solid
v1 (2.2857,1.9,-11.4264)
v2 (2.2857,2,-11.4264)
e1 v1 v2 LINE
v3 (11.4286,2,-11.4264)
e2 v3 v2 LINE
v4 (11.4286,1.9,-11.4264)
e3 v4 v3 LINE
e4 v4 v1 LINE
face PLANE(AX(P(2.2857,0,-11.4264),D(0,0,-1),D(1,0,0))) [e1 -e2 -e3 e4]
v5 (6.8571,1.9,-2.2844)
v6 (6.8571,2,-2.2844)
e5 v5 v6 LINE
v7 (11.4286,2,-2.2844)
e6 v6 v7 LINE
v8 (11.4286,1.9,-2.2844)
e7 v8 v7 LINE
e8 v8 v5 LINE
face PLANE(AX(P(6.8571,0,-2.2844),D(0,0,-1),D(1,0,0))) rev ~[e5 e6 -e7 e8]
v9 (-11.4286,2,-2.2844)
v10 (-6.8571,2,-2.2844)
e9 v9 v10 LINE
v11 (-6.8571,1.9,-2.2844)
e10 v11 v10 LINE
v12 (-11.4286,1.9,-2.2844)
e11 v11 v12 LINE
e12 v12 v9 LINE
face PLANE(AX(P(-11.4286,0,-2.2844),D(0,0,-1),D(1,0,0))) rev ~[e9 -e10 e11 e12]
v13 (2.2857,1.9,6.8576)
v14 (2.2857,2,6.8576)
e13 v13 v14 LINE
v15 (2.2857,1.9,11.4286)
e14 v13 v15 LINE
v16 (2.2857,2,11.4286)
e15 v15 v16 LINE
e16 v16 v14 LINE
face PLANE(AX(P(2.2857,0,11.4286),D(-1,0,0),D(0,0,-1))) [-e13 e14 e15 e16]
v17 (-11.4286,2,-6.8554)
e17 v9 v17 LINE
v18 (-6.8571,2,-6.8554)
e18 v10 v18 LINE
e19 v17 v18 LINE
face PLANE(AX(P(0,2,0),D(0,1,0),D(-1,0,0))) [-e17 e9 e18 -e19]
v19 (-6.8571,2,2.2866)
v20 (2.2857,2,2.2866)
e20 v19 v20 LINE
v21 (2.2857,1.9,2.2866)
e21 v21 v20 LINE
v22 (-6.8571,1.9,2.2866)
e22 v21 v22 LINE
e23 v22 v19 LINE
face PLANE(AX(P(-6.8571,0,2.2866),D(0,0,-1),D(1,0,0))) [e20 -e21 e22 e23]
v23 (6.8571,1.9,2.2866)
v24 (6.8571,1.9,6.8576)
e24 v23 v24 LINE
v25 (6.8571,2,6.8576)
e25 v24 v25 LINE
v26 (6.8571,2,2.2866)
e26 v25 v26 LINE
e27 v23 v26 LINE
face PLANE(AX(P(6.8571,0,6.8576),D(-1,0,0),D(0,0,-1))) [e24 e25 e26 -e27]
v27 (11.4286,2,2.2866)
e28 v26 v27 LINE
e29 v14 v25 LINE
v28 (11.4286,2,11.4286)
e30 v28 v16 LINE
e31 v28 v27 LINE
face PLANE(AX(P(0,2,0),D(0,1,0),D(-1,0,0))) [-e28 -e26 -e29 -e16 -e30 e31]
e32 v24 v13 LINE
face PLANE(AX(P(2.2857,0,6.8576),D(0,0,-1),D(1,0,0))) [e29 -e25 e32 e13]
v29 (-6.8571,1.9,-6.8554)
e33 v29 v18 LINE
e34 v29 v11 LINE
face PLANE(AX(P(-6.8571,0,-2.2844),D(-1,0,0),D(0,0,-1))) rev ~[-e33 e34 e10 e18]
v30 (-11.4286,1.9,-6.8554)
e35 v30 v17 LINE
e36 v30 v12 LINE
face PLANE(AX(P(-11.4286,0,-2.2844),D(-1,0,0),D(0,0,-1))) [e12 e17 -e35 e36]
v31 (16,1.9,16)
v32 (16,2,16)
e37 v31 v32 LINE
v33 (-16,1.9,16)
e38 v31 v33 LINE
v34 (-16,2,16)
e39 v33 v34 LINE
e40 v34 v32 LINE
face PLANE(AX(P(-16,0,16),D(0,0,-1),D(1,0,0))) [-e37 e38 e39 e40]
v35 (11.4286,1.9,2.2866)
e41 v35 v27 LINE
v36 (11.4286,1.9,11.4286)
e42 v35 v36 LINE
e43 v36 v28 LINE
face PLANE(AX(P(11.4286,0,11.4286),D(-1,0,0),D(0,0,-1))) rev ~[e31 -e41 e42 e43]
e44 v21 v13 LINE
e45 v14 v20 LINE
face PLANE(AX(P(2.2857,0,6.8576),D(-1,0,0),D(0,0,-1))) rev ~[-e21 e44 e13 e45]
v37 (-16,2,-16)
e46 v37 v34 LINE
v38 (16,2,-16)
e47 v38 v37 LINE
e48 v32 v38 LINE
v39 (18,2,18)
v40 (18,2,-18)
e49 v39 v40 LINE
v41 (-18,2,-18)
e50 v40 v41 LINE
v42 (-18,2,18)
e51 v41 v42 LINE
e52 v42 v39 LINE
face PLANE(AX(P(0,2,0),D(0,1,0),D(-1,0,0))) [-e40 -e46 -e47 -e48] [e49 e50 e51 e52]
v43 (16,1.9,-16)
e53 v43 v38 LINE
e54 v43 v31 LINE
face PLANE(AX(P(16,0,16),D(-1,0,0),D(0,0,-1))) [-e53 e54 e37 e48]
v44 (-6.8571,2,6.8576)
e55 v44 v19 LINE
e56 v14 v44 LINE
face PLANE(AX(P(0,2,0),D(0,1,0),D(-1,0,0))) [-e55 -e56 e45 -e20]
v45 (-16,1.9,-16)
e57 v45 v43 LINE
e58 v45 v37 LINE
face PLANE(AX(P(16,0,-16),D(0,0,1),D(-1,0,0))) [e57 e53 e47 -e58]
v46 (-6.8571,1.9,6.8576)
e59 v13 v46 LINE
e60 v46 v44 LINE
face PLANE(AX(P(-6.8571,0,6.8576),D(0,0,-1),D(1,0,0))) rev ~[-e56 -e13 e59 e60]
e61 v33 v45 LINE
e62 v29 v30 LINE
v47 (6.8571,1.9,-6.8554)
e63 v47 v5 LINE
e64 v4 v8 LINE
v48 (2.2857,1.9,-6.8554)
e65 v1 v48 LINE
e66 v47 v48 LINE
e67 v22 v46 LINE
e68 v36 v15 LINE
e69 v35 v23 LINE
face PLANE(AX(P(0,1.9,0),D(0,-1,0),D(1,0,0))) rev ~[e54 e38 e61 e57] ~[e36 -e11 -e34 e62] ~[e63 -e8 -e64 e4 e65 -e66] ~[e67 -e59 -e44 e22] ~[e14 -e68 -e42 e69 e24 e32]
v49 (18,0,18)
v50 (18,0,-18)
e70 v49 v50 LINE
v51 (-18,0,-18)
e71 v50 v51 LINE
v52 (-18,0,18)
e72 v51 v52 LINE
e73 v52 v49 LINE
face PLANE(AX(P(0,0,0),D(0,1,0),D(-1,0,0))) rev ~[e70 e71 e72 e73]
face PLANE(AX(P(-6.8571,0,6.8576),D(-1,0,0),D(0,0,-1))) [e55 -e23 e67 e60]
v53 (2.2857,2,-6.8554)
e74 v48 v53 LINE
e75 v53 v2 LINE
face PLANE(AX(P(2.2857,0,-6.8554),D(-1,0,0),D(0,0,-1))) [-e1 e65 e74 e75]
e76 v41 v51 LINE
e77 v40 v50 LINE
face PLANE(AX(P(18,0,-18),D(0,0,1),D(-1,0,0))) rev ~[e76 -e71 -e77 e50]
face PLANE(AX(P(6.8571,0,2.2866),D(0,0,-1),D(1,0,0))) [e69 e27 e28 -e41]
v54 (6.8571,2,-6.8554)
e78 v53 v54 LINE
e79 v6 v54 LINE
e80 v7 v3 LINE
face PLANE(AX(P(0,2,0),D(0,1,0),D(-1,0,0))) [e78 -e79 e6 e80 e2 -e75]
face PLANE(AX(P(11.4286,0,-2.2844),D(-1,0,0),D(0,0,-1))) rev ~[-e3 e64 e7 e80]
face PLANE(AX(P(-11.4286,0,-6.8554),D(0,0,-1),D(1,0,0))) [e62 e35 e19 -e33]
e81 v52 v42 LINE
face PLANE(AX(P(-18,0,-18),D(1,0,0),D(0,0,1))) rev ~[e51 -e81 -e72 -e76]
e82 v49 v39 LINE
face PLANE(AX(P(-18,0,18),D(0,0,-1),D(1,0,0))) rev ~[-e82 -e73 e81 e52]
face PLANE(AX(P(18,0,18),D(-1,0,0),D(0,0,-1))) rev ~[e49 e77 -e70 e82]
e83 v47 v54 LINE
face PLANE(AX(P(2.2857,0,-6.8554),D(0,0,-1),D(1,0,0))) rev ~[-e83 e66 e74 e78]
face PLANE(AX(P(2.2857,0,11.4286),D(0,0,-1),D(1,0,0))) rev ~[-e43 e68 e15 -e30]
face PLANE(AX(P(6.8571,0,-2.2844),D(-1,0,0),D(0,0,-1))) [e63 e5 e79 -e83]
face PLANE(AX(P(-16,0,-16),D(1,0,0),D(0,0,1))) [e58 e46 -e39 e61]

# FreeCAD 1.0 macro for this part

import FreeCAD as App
import Part
import Sketcher
from FreeCAD import Vector
Q = App.Units.Quantity


def add_polygon(sketch, points):
    """Adds a closed chain of lines whose ends are joined by coincident constraints."""
    first, n = sketch.GeometryCount, len(points)
    for a, b in zip(points, points[1:] + points[:1]):
        sketch.addGeometry(Part.LineSegment(App.Vector(*a, 0), App.Vector(*b, 0)), False)
    for i in range(n):
        sketch.addConstraint(Sketcher.Constraint("Coincident", first + i, 2, first + (i + 1) % n, 1))

doc = App.newDocument("Part")
body = doc.addObject("PartDesign::Body", "Body")
body.AllowCompound = True

sketch1 = doc.addObject("Sketcher::SketchObject", "Sketch")
body.addObject(sketch1)
sketch1.AttachmentSupport = (doc.XZ_Plane, [""])
sketch1.MapMode = "FlatFace"
add_polygon(sketch1, [(-6.9, 2.3), (-6.9, 6.9), (2.3, 6.9), (2.3, 2.3)])
add_polygon(sketch1, [(2.3, 6.9), (2.3, 11.4), (11.4, 11.4), (11.4, 2.3), (6.9, 2.3), (6.9, 6.9)])
add_polygon(sketch1, [(-11.4, -6.9), (-11.4, -2.3), (-6.9, -2.3), (-6.9, -6.9)])
add_polygon(sketch1, [(6.9, -6.9), (6.9, -2.3), (11.4, -2.3), (11.4, -11.4), (2.3, -11.4), (2.3, -6.9)])
add_polygon(sketch1, [(-18, -18), (-18, 18), (18, 18), (18, -18)])
add_polygon(sketch1, [(16, 16), (-16, 16), (-16, -16), (16, -16)])
sketch1.addConstraint(Sketcher.Constraint("Vertical", 0))
sketch1.addConstraint(Sketcher.Constraint("Horizontal", 1))
sketch1.addConstraint(Sketcher.Constraint("Vertical", 2))
sketch1.addConstraint(Sketcher.Constraint("Horizontal", 3))
sketch1.addConstraint(Sketcher.Constraint("Vertical", 4))
sketch1.addConstraint(Sketcher.Constraint("Horizontal", 5))
sketch1.addConstraint(Sketcher.Constraint("Vertical", 6))
sketch1.addConstraint(Sketcher.Constraint("Horizontal", 7))
sketch1.addConstraint(Sketcher.Constraint("Vertical", 8))
sketch1.addConstraint(Sketcher.Constraint("Horizontal", 9))
sketch1.addConstraint(Sketcher.Constraint("Vertical", 10))
sketch1.addConstraint(Sketcher.Constraint("Horizontal", 11))
sketch1.addConstraint(Sketcher.Constraint("Vertical", 12))
sketch1.addConstraint(Sketcher.Constraint("Horizontal", 13))
sketch1.addConstraint(Sketcher.Constraint("Vertical", 14))
sketch1.addConstraint(Sketcher.Constraint("Horizontal", 15))
sketch1.addConstraint(Sketcher.Constraint("Vertical", 16))
sketch1.addConstraint(Sketcher.Constraint("Horizontal", 17))
sketch1.addConstraint(Sketcher.Constraint("Vertical", 18))
sketch1.addConstraint(Sketcher.Constraint("Horizontal", 19))
sketch1.addConstraint(Sketcher.Constraint("Vertical", 20))
sketch1.addConstraint(Sketcher.Constraint("Horizontal", 21))
sketch1.addConstraint(Sketcher.Constraint("Vertical", 22))
sketch1.addConstraint(Sketcher.Constraint("Horizontal", 23))
sketch1.addConstraint(Sketcher.Constraint("Horizontal", 24))
sketch1.addConstraint(Sketcher.Constraint("Vertical", 25))
sketch1.addConstraint(Sketcher.Constraint("Horizontal", 26))
sketch1.addConstraint(Sketcher.Constraint("Vertical", 27))
sketch1.addConstraint(Sketcher.Constraint("Coincident", 9, 2, 1, 2))
sketch1.addConstraint(Sketcher.Constraint("Symmetric", 20, 2, 22, 2, -1, 1))
sketch1.addConstraint(Sketcher.Constraint("Symmetric", 24, 2, 26, 2, -1, 1))
sketch1.addConstraint(Sketcher.Constraint("Symmetric", 3, 2, 7, 2, -2))
sketch1.addConstraint(Sketcher.Constraint("Symmetric", 11, 2, 14, 2, -2))
sketch1.addConstraint(Sketcher.Constraint("Horizontal", 13, 2, 18, 2))
sketch1.addConstraint(Sketcher.Constraint("Vertical", 3, 2, 11, 2))
sketch1.addConstraint(Sketcher.Constraint("Vertical", 6, 2, 15, 2))
sketch1.addConstraint(Sketcher.Constraint("Vertical", 9, 2, 17, 2))
sketch1.addConstraint(Sketcher.Constraint("Equal", 3, 5))
sketch1.addConstraint(Sketcher.Constraint("Equal", 7, 9))
sketch1.addConstraint(Sketcher.Constraint("Equal", 9, 11))
sketch1.addConstraint(Sketcher.Constraint("Equal", 2, 4))
sketch1.addConstraint(Sketcher.Constraint("Equal", 8, 10))
sketch1.addConstraint(Sketcher.Constraint("Equal", 6, 16))
sketch1.addConstraint(Sketcher.Constraint("Equal", 23, 20))
sketch1.addConstraint(Sketcher.Constraint("Equal", 26, 25))
sketch1.addConstraint(Sketcher.Constraint("DistanceX", 21, 1, 21, 2, Q("36 mm")))
sketch1.addConstraint(Sketcher.Constraint("DistanceX", 24, 2, 24, 1, Q("32 mm")))
sketch1.addConstraint(Sketcher.Constraint("DistanceY", 0, 1, 0, 2, Q("4.571 mm")))
sketch1.addConstraint(Sketcher.Constraint("DistanceX", 7, 2, 7, 1, Q("4.5715 mm")))
sketch1.addConstraint(Sketcher.Constraint("DistanceY", 10, 2, 3, 2, Q("4.571 mm")))
sketch1.addConstraint(Sketcher.Constraint("DistanceY", 4, 2, 24, 2, Q("4.5714 mm")))
pad1 = doc.addObject("PartDesign::Pad", "Pad")
body.addObject(pad1)
pad1.Profile = sketch1
pad1.Length = 2
pad1.Reversed = True

sketch2 = doc.addObject("Sketcher::SketchObject", "Sketch001")
body.addObject(sketch2)
sketch2.AttachmentSupport = (doc.XZ_Plane, [""])
sketch2.MapMode = "FlatFace"
add_polygon(sketch2, [(-18, 18), (-18, -18), (18, -18), (18, 18)])
sketch2.addConstraint(Sketcher.Constraint("Vertical", 0))
sketch2.addConstraint(Sketcher.Constraint("Horizontal", 1))
sketch2.addConstraint(Sketcher.Constraint("Vertical", 2))
sketch2.addConstraint(Sketcher.Constraint("Horizontal", 3))
sketch2.addConstraint(Sketcher.Constraint("Symmetric", 0, 2, 2, 2, -1, 1))
sketch2.addConstraint(Sketcher.Constraint("Equal", 3, 0))
sketch2.addConstraint(Sketcher.Constraint("DistanceX", 1, 1, 1, 2, Q("36 mm")))
pad2 = doc.addObject("PartDesign::Pad", "Pad001")
body.addObject(pad2)
pad2.Profile = sketch2
pad2.Length = 1.9
pad2.Reversed = True

doc.recompute()
